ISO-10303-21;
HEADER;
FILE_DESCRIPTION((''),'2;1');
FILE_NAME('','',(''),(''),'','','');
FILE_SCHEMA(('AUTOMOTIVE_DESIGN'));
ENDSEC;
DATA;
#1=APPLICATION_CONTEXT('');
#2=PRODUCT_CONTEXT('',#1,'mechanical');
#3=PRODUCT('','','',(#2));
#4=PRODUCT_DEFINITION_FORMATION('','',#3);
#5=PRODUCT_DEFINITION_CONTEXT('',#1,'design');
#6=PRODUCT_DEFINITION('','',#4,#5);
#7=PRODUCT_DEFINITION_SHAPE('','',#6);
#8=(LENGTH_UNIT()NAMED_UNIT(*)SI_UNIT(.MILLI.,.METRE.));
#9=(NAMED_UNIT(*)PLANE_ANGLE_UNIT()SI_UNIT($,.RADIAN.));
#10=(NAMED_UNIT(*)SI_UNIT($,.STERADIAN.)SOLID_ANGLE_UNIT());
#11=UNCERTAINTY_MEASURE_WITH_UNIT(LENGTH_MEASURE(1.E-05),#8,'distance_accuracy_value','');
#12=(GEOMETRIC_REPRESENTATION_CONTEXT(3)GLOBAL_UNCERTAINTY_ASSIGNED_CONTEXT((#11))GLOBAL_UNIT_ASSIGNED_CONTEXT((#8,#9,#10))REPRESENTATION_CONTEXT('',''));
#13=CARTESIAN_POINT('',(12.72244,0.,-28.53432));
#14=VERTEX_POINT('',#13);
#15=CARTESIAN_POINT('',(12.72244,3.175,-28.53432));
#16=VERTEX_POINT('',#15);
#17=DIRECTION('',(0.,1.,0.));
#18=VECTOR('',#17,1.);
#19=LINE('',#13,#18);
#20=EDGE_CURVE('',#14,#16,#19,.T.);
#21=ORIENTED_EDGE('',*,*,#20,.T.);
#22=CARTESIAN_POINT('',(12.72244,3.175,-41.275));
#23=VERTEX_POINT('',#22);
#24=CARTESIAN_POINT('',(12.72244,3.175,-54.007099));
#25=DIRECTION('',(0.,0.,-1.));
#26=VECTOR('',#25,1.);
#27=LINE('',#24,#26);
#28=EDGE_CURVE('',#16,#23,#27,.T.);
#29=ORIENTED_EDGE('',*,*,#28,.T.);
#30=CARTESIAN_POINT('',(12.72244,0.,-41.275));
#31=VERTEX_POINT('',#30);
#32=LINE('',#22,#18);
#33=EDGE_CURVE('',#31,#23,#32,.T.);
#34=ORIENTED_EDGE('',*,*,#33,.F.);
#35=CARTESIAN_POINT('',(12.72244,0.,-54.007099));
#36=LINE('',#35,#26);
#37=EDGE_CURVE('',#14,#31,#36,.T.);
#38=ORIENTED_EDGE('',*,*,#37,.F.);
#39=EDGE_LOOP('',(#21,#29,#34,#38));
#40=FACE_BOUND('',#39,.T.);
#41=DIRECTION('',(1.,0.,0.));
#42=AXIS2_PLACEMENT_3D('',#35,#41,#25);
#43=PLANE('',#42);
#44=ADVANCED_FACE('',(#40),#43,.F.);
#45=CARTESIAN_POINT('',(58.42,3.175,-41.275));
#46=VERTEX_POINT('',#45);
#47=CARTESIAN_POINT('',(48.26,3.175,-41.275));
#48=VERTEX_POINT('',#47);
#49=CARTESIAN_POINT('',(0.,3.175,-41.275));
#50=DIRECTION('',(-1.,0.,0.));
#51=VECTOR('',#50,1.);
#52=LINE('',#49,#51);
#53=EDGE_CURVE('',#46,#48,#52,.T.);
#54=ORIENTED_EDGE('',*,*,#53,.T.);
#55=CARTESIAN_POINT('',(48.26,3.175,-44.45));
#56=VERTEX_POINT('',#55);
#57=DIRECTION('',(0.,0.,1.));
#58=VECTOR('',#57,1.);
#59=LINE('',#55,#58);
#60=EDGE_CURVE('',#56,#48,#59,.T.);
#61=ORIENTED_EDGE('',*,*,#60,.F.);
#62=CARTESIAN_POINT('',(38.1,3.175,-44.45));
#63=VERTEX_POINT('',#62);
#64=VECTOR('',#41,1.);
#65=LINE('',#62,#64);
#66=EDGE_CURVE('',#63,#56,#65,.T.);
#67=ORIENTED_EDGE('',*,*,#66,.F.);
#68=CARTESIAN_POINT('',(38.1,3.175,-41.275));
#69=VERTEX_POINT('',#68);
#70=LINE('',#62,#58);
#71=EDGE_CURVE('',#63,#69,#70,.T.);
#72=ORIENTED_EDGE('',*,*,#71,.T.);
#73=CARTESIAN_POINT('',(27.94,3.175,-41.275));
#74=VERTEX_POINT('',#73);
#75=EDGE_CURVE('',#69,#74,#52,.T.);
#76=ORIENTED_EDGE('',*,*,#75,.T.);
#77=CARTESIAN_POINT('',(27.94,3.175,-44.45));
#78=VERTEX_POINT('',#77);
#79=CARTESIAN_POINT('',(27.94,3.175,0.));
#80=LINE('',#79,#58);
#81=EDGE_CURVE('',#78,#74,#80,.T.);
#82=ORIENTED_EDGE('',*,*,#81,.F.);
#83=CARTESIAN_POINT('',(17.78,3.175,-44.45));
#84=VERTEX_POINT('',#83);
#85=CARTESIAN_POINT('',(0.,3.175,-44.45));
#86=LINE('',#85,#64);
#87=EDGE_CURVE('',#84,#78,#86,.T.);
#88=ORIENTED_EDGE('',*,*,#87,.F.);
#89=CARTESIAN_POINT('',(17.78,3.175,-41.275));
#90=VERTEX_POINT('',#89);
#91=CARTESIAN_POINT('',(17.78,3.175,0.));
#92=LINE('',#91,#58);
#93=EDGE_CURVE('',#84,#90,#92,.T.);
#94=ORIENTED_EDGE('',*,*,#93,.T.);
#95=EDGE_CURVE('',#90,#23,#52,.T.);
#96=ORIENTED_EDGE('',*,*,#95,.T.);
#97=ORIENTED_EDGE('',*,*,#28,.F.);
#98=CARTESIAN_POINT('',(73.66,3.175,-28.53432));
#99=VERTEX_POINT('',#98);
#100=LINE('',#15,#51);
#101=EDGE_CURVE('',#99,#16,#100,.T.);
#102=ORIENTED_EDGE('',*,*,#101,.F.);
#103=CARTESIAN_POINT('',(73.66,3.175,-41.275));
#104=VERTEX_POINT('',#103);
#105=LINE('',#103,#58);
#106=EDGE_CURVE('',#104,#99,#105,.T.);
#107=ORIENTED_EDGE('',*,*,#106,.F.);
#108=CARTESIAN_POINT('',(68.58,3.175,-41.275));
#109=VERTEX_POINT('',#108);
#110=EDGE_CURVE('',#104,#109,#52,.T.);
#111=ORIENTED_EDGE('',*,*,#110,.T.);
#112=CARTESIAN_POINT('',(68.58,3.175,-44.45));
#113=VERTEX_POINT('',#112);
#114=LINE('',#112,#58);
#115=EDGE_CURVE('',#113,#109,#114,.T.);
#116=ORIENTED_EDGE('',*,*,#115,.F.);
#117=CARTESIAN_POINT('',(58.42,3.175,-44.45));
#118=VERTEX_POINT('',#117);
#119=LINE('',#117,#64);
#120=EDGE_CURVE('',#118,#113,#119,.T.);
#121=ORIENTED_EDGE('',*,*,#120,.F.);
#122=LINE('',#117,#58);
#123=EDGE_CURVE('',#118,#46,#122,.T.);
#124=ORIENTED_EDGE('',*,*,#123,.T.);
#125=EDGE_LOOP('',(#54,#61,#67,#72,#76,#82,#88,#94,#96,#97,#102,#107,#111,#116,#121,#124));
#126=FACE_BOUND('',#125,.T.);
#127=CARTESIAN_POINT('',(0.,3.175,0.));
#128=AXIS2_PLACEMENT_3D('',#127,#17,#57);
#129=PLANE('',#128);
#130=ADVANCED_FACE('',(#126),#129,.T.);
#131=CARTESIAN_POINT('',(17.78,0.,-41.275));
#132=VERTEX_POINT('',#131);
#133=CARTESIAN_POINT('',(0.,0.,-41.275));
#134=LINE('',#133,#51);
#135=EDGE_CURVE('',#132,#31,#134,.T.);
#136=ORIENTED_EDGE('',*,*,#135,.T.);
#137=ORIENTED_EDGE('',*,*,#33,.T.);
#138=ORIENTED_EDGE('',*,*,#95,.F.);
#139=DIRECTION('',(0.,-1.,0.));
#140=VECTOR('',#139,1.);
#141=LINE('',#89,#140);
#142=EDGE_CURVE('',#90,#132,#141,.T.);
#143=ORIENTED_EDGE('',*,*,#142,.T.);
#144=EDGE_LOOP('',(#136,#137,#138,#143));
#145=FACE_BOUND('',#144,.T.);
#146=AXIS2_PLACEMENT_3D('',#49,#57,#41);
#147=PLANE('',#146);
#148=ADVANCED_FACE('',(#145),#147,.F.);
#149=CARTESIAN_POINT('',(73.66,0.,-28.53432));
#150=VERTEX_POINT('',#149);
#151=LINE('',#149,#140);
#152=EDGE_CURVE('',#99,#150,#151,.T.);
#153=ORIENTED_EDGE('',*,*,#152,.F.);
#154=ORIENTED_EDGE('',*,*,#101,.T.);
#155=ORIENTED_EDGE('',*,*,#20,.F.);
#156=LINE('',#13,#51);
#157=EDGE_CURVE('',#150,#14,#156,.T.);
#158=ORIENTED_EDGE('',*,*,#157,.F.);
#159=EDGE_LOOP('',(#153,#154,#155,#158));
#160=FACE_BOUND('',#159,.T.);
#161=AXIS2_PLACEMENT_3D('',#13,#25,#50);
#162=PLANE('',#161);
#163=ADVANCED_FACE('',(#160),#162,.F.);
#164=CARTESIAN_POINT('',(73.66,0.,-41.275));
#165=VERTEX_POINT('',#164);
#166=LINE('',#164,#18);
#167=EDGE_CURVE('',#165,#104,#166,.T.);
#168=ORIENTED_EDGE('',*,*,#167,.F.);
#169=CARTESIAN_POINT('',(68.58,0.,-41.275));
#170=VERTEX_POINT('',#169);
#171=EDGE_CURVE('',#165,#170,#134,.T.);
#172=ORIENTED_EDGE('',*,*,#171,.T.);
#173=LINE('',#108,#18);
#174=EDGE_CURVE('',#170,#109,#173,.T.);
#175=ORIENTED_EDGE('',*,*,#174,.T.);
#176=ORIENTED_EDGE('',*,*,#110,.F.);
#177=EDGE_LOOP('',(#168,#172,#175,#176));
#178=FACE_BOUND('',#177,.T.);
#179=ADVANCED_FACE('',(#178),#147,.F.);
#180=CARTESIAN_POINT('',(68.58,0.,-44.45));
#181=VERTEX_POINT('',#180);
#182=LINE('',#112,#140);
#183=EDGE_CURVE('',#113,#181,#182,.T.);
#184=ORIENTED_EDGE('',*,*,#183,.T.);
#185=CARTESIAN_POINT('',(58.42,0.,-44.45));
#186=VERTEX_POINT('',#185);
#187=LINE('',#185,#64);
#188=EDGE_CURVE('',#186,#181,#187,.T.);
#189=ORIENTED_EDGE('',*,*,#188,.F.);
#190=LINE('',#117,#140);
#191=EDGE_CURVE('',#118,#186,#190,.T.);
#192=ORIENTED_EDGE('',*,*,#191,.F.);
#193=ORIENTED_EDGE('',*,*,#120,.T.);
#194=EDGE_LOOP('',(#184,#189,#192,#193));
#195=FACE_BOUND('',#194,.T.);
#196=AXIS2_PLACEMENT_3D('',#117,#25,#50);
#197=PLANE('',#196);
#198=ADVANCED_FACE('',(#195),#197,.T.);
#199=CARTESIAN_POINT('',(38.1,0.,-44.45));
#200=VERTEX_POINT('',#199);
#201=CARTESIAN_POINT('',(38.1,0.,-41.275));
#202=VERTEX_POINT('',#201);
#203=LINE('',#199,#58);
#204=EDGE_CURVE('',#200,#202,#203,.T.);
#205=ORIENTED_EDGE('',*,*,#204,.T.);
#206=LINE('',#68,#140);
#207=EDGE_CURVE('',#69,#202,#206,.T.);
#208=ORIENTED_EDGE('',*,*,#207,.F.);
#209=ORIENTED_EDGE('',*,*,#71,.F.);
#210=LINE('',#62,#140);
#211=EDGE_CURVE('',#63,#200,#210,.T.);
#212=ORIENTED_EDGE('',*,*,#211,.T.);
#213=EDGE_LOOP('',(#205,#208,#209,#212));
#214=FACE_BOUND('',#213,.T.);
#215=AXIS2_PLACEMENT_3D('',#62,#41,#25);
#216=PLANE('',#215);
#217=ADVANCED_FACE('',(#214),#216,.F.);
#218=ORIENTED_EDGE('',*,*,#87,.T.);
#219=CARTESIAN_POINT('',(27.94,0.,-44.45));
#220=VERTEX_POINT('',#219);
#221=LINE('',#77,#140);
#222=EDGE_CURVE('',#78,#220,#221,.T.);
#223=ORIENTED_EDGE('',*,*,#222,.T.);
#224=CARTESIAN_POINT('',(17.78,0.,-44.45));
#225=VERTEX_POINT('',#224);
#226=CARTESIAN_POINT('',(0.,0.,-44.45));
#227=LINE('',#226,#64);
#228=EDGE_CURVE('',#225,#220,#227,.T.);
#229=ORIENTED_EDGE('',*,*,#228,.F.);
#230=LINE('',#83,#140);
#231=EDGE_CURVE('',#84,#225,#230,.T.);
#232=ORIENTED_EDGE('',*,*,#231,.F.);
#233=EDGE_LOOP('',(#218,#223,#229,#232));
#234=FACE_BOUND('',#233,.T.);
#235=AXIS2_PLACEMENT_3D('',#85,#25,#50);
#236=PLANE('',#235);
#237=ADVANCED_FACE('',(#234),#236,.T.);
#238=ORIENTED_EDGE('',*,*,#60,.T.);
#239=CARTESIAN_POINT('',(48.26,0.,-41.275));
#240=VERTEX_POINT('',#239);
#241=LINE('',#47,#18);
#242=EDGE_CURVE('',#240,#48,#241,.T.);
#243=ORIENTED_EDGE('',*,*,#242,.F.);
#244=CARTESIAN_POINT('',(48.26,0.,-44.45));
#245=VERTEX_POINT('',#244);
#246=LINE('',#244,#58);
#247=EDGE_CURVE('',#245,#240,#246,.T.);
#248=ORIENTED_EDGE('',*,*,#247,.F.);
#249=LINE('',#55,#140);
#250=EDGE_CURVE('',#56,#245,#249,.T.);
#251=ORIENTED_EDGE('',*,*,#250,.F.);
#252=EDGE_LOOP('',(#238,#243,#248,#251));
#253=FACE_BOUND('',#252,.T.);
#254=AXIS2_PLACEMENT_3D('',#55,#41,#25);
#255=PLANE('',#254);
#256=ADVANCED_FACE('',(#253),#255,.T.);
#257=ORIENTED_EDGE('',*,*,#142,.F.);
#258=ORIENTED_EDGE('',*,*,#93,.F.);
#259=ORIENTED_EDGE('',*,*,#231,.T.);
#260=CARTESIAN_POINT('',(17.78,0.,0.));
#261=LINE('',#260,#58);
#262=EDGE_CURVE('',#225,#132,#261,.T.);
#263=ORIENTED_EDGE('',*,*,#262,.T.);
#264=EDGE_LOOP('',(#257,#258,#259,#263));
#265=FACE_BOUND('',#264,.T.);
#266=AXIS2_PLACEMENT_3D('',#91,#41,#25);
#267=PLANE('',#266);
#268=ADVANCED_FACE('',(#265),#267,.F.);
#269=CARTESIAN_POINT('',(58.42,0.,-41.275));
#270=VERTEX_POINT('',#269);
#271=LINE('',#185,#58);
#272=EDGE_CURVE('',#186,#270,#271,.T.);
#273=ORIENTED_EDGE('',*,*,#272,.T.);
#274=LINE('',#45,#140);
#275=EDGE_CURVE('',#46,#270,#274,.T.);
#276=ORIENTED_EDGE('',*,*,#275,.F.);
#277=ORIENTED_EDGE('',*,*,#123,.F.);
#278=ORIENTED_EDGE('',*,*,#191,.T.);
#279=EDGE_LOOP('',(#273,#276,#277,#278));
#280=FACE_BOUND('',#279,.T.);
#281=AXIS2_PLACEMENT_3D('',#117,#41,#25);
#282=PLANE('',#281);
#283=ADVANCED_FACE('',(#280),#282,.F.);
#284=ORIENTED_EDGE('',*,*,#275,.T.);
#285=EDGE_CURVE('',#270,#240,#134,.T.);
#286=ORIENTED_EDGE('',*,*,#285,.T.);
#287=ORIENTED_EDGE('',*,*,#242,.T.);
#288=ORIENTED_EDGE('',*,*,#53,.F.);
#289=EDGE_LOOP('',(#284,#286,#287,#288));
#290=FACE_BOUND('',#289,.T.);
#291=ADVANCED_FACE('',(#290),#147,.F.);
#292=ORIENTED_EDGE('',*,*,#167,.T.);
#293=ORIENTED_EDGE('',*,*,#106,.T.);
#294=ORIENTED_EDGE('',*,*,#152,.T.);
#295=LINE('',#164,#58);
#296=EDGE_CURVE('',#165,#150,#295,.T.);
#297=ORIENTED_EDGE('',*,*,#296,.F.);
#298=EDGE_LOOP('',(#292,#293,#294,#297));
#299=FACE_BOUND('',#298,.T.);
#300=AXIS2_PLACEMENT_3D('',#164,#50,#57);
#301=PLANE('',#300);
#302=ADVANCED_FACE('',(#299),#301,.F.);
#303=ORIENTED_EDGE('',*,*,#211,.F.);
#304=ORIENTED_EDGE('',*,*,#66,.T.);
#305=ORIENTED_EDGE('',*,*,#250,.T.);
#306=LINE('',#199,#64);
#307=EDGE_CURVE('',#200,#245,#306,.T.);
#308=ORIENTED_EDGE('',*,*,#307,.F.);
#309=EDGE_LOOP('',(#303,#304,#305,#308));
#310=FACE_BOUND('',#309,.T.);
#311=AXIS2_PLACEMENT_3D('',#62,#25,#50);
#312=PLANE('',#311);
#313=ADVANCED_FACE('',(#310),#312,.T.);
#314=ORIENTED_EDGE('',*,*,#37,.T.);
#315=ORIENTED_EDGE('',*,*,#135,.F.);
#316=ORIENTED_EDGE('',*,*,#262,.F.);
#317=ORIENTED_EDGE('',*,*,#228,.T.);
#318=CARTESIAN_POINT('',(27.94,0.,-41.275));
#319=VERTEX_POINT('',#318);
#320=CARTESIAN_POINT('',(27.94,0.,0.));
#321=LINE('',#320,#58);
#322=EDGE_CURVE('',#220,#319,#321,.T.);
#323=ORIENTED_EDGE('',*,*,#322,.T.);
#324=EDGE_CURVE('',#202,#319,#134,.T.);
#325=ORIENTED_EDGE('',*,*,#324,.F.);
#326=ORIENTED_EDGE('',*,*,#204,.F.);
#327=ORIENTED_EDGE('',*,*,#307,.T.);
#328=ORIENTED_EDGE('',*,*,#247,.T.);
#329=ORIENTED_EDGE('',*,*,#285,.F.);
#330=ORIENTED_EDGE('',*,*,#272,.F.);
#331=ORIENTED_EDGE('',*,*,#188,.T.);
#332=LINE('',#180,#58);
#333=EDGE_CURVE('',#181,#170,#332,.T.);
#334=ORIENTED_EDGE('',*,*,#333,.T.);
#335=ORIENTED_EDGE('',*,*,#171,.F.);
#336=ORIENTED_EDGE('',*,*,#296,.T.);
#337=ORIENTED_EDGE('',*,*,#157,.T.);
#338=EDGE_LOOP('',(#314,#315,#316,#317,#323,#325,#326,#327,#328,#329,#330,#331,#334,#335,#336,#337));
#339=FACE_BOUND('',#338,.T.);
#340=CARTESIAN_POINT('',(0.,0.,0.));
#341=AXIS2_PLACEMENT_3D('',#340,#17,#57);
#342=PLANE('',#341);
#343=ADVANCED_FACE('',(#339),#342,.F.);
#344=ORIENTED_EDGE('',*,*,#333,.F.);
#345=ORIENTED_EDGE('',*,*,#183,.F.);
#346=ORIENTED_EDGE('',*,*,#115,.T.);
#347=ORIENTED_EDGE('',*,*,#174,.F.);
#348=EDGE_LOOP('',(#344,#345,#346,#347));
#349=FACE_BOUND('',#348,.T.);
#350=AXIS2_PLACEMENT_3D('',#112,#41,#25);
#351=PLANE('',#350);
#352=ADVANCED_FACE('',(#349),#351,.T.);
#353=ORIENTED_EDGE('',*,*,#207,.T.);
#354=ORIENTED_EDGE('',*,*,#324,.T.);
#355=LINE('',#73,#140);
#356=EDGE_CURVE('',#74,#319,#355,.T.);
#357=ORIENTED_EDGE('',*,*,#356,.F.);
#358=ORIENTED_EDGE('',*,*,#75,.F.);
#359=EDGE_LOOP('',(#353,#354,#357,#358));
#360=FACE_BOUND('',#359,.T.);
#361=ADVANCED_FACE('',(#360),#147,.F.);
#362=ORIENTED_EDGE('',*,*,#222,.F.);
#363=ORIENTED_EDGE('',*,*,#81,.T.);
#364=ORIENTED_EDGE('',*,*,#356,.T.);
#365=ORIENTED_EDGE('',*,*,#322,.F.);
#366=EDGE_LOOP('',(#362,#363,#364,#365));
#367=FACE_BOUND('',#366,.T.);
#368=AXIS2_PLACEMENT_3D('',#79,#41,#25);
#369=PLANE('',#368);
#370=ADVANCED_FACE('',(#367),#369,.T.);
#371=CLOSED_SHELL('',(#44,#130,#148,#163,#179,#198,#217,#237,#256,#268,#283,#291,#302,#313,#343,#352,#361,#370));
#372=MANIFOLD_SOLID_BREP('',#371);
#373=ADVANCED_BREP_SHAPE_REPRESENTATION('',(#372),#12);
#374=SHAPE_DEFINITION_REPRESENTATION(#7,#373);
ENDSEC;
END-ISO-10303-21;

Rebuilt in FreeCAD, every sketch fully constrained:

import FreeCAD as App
import Part
import Sketcher

V = App.Vector
Q = App.Units.Quantity


def add_polygon(sketch, points):
    """Adds a closed chain of lines whose ends are joined by coincident constraints."""
    first, n = sketch.GeometryCount, len(points)
    for a, b in zip(points, points[1:] + points[:1]):
        sketch.addGeometry(Part.LineSegment(App.Vector(*a, 0), App.Vector(*b, 0)), False)
    for i in range(n):
        sketch.addConstraint(Sketcher.Constraint("Coincident", first + i, 2, first + (i + 1) % n, 1))

doc = App.newDocument("Part")
body = doc.addObject("PartDesign::Body", "Body")

# Sketch on XZ plane
sketch1 = body.newObject("Sketcher::SketchObject", "Sketch")
sketch1.AttachmentSupport = (doc.getObject("XZ_Plane"), [""])
sketch1.MapMode = "FlatFace"
add_polygon(sketch1, [(38.1, 41.3), (38.1, 44.5), (48.3, 44.5), (48.3, 41.3), (58.4, 41.3), (58.4, 44.5), (68.6, 44.5), (68.6, 41.3), (76.2, 41.3), (76.2, -41.3), (68.6, -41.3), (68.6, -44.5), (58.4, -44.5), (58.4, -41.3), (48.3, -41.3), (48.3, -44.5), (38.1, -44.5), (38.1, -41.3), (27.9, -41.3), (27.9, -44.5), (17.8, -44.5), (17.8, -41.3), (-76.2, -41.3), (-76.2, 41.3), (17.8, 41.3), (17.8, 44.5), (27.9, 44.5), (27.9, 41.3)])  # lines 0-27
sketch1.addGeometry(Part.Circle(V(-65.1, 0, 0), V(0, 0, 1), 7.7), False)  # 28
sketch1.addConstraint([
    Sketcher.Constraint("Vertical", 0),
    Sketcher.Constraint("Horizontal", 1),
    Sketcher.Constraint("Vertical", 2),
    Sketcher.Constraint("Horizontal", 3),
    Sketcher.Constraint("Vertical", 4),
    Sketcher.Constraint("Horizontal", 5),
    Sketcher.Constraint("Vertical", 6),
    Sketcher.Constraint("Horizontal", 7),
    Sketcher.Constraint("Vertical", 8),
    Sketcher.Constraint("Horizontal", 9),
    Sketcher.Constraint("Vertical", 10),
    Sketcher.Constraint("Horizontal", 11),
    Sketcher.Constraint("Vertical", 12),
    Sketcher.Constraint("Horizontal", 13),
    Sketcher.Constraint("Vertical", 14),
    Sketcher.Constraint("Horizontal", 15),
    Sketcher.Constraint("Vertical", 16),
    Sketcher.Constraint("Horizontal", 17),
    Sketcher.Constraint("Vertical", 18),
    Sketcher.Constraint("Horizontal", 19),
    Sketcher.Constraint("Vertical", 20),
    Sketcher.Constraint("Horizontal", 21),
    Sketcher.Constraint("Vertical", 22),
    Sketcher.Constraint("Horizontal", 23),
    Sketcher.Constraint("Vertical", 24),
    Sketcher.Constraint("Horizontal", 25),
    Sketcher.Constraint("Vertical", 26),
    Sketcher.Constraint("Horizontal", 27),
    Sketcher.Constraint("Symmetric", 7, 2, 21, 2, -1, 1),
    Sketcher.Constraint("Symmetric", 6, 2, 9, 2, -1),
    Sketcher.Constraint("Symmetric", 4, 2, 11, 2, -1),
    Sketcher.Constraint("Symmetric", 2, 2, 13, 2, -1),
    Sketcher.Constraint("Symmetric", 0, 2, 15, 2, -1),
    Sketcher.Constraint("Symmetric", 20, 2, 23, 2, -1),
    Sketcher.Constraint("Symmetric", 18, 2, 25, 2, -1),
    Sketcher.Constraint("PointOnObject", 28, 3, -1),
    Sketcher.Constraint("Horizontal", 1, 2, 4, 2),
    Sketcher.Constraint("Horizontal", 3, 2, 6, 2),
    Sketcher.Constraint("Horizontal", 13, 2, 16, 2),
    Sketcher.Constraint("Horizontal", 15, 2, 18, 2),
    Sketcher.Constraint("Horizontal", 23, 2, 26, 2),
    Sketcher.Constraint("Equal", 1, 3),
    Sketcher.Constraint("Equal", 3, 5),
    Sketcher.Constraint("Equal", 15, 17),
    Sketcher.Constraint("Equal", 17, 19),
    Sketcher.Constraint("Diameter", 28, Q("0.61 in")),
    Sketcher.Constraint("DistanceX", 1, 1, 1, 2, Q("0.4 in")),
    Sketcher.Constraint("DistanceX", 7, 1, 7, 2, Q("0.3 in")),
    Sketcher.Constraint("DistanceX", 21, 2, 21, 1, Q("3.7 in")),
    Sketcher.Constraint("DistanceY", 8, 2, 8, 1, Q("3.25 in")),
    Sketcher.Constraint("DistanceY", 0, 1, 0, 2, Q("0.125 in")),
    Sketcher.Constraint("DistanceX", 28, 3, -1, 1, Q("65.076591 mm")),
])
pad1 = body.newObject("PartDesign::Pad", "Pad")
pad1.Profile = sketch1
pad1.Length = Q("0.125 in")
pad1.Reversed = True

# Sketch on XZ plane
sketch2 = body.newObject("Sketcher::SketchObject", "Sketch001")
sketch2.AttachmentSupport = (doc.getObject("XZ_Plane"), [""])
sketch2.MapMode = "FlatFace"
sketch2.AttachmentOffset = App.Placement(V(0, 0, -0.125 * 25.4), App.Rotation())
sketch2.addGeometry([
    Part.Circle(V(-47.4, -15.2, 0), V(0, 0, 1), 2.5),
    Part.Circle(V(-23.5, -15.2, 0), V(0, 0, 1), 2.5),
    Part.Circle(V(-23.5, 15.2, 0), V(0, 0, 1), 2.5),
    Part.Circle(V(-47.4, 15.2, 0), V(0, 0, 1), 2.5),
], False)
sketch2.addConstraint([
    Sketcher.Constraint("Equal", 0, 1),
    Sketcher.Constraint("Equal", 1, 2),
    Sketcher.Constraint("Equal", 2, 3),
    Sketcher.Constraint("Symmetric", 1, 3, 2, 3, -1),
    Sketcher.Constraint("Symmetric", 0, 3, 3, 3, -1),
    Sketcher.Constraint("Horizontal", 0, 3, 1, 3),
    Sketcher.Constraint("Diameter", 0, Q("0.2 in")),
    Sketcher.Constraint("DistanceY", 0, 3, -1, 1, Q("0.6 in")),
    Sketcher.Constraint("DistanceX", 0, 3, 1, 3, Q("0.94 in")),
    Sketcher.Constraint("DistanceX", 0, 3, -1, 1, Q("47.375427 mm")),
])
pocket1 = body.newObject("PartDesign::Pocket", "Pocket")
pocket1.Profile = sketch2
pocket1.Type = "ThroughAll"
pocket1.Reversed = True

# Sketch on XZ plane
sketch3 = body.newObject("Sketcher::SketchObject", "Sketch002")
sketch3.AttachmentSupport = (doc.getObject("XZ_Plane"), [""])
sketch3.MapMode = "FlatFace"
sketch3.AttachmentOffset = App.Placement(V(0, 0, -0.125 * 25.4), App.Rotation())
add_polygon(sketch3, [(73.7, -41.3), (73.7, 41.3), (76.2, 41.3), (76.2, -41.3)])  # lines 0-3
sketch3.addConstraint([
    Sketcher.Constraint("Vertical", 0),
    Sketcher.Constraint("Horizontal", 1),
    Sketcher.Constraint("Vertical", 2),
    Sketcher.Constraint("Horizontal", 3),
    Sketcher.Constraint("DistanceX", 1, 1, 1, 2, Q("0.1 in")),
    Sketcher.Constraint("DistanceX", -1, 1, 1, 2, Q("3 in")),
    Sketcher.Constraint("DistanceY", 0, 1, 0, 2, Q("3.25 in")),
    Sketcher.Constraint("DistanceY", -1, 1, 0, 2, Q("1.625 in")),
])
pocket2 = body.newObject("PartDesign::Pocket", "Pocket001")
pocket2.Profile = sketch3
pocket2.Type = "ThroughAll"
pocket2.Reversed = True

# Sketch on XZ plane
sketch4 = body.newObject("Sketcher::SketchObject", "Sketch003")
sketch4.AttachmentSupport = (doc.getObject("XZ_Plane"), [""])
sketch4.MapMode = "FlatFace"
sketch4.AttachmentOffset = App.Placement(V(0, 0, -0.125 * 25.4), App.Rotation())
add_polygon(sketch4, [(13, -29), (13, -54), (-116, -54), (-115, 52), (85, 50), (85, -29)])  # lines 0-5
sketch4.addConstraint([
    Sketcher.Constraint("Vertical", 0),
    Sketcher.Constraint("Horizontal", 1),
    Sketcher.Constraint("Vertical", 4),
    Sketcher.Constraint("Horizontal", 5),
    Sketcher.Constraint("Perpendicular", 2, 3),
    Sketcher.Constraint("DistanceX", 1, 2, 1, 1, Q("128.460929 mm")),
    Sketcher.Constraint("DistanceY", 0, 2, 0, 1, Q("25.472779 mm")),
    Sketcher.Constraint("DistanceY", 0, 2, -1, 1, Q("54.007099 mm")),
    Sketcher.Constraint("DistanceX", 5, 2, 5, 1, Q("71.995878 mm")),
    Sketcher.Constraint("DistanceY", 4, 2, 4, 1, Q("78.575378 mm")),
    Sketcher.Constraint("DistanceX", -1, 1, 0, 2, Q("12.72244 mm")),
    Sketcher.Constraint("DistanceX", 2, 2, -1, 1, Q("114.731091 mm")),
])
pocket3 = body.newObject("PartDesign::Pocket", "Pocket002")
pocket3.Profile = sketch4
pocket3.Type = "ThroughAll"
pocket3.Reversed = True

doc.recompute()
